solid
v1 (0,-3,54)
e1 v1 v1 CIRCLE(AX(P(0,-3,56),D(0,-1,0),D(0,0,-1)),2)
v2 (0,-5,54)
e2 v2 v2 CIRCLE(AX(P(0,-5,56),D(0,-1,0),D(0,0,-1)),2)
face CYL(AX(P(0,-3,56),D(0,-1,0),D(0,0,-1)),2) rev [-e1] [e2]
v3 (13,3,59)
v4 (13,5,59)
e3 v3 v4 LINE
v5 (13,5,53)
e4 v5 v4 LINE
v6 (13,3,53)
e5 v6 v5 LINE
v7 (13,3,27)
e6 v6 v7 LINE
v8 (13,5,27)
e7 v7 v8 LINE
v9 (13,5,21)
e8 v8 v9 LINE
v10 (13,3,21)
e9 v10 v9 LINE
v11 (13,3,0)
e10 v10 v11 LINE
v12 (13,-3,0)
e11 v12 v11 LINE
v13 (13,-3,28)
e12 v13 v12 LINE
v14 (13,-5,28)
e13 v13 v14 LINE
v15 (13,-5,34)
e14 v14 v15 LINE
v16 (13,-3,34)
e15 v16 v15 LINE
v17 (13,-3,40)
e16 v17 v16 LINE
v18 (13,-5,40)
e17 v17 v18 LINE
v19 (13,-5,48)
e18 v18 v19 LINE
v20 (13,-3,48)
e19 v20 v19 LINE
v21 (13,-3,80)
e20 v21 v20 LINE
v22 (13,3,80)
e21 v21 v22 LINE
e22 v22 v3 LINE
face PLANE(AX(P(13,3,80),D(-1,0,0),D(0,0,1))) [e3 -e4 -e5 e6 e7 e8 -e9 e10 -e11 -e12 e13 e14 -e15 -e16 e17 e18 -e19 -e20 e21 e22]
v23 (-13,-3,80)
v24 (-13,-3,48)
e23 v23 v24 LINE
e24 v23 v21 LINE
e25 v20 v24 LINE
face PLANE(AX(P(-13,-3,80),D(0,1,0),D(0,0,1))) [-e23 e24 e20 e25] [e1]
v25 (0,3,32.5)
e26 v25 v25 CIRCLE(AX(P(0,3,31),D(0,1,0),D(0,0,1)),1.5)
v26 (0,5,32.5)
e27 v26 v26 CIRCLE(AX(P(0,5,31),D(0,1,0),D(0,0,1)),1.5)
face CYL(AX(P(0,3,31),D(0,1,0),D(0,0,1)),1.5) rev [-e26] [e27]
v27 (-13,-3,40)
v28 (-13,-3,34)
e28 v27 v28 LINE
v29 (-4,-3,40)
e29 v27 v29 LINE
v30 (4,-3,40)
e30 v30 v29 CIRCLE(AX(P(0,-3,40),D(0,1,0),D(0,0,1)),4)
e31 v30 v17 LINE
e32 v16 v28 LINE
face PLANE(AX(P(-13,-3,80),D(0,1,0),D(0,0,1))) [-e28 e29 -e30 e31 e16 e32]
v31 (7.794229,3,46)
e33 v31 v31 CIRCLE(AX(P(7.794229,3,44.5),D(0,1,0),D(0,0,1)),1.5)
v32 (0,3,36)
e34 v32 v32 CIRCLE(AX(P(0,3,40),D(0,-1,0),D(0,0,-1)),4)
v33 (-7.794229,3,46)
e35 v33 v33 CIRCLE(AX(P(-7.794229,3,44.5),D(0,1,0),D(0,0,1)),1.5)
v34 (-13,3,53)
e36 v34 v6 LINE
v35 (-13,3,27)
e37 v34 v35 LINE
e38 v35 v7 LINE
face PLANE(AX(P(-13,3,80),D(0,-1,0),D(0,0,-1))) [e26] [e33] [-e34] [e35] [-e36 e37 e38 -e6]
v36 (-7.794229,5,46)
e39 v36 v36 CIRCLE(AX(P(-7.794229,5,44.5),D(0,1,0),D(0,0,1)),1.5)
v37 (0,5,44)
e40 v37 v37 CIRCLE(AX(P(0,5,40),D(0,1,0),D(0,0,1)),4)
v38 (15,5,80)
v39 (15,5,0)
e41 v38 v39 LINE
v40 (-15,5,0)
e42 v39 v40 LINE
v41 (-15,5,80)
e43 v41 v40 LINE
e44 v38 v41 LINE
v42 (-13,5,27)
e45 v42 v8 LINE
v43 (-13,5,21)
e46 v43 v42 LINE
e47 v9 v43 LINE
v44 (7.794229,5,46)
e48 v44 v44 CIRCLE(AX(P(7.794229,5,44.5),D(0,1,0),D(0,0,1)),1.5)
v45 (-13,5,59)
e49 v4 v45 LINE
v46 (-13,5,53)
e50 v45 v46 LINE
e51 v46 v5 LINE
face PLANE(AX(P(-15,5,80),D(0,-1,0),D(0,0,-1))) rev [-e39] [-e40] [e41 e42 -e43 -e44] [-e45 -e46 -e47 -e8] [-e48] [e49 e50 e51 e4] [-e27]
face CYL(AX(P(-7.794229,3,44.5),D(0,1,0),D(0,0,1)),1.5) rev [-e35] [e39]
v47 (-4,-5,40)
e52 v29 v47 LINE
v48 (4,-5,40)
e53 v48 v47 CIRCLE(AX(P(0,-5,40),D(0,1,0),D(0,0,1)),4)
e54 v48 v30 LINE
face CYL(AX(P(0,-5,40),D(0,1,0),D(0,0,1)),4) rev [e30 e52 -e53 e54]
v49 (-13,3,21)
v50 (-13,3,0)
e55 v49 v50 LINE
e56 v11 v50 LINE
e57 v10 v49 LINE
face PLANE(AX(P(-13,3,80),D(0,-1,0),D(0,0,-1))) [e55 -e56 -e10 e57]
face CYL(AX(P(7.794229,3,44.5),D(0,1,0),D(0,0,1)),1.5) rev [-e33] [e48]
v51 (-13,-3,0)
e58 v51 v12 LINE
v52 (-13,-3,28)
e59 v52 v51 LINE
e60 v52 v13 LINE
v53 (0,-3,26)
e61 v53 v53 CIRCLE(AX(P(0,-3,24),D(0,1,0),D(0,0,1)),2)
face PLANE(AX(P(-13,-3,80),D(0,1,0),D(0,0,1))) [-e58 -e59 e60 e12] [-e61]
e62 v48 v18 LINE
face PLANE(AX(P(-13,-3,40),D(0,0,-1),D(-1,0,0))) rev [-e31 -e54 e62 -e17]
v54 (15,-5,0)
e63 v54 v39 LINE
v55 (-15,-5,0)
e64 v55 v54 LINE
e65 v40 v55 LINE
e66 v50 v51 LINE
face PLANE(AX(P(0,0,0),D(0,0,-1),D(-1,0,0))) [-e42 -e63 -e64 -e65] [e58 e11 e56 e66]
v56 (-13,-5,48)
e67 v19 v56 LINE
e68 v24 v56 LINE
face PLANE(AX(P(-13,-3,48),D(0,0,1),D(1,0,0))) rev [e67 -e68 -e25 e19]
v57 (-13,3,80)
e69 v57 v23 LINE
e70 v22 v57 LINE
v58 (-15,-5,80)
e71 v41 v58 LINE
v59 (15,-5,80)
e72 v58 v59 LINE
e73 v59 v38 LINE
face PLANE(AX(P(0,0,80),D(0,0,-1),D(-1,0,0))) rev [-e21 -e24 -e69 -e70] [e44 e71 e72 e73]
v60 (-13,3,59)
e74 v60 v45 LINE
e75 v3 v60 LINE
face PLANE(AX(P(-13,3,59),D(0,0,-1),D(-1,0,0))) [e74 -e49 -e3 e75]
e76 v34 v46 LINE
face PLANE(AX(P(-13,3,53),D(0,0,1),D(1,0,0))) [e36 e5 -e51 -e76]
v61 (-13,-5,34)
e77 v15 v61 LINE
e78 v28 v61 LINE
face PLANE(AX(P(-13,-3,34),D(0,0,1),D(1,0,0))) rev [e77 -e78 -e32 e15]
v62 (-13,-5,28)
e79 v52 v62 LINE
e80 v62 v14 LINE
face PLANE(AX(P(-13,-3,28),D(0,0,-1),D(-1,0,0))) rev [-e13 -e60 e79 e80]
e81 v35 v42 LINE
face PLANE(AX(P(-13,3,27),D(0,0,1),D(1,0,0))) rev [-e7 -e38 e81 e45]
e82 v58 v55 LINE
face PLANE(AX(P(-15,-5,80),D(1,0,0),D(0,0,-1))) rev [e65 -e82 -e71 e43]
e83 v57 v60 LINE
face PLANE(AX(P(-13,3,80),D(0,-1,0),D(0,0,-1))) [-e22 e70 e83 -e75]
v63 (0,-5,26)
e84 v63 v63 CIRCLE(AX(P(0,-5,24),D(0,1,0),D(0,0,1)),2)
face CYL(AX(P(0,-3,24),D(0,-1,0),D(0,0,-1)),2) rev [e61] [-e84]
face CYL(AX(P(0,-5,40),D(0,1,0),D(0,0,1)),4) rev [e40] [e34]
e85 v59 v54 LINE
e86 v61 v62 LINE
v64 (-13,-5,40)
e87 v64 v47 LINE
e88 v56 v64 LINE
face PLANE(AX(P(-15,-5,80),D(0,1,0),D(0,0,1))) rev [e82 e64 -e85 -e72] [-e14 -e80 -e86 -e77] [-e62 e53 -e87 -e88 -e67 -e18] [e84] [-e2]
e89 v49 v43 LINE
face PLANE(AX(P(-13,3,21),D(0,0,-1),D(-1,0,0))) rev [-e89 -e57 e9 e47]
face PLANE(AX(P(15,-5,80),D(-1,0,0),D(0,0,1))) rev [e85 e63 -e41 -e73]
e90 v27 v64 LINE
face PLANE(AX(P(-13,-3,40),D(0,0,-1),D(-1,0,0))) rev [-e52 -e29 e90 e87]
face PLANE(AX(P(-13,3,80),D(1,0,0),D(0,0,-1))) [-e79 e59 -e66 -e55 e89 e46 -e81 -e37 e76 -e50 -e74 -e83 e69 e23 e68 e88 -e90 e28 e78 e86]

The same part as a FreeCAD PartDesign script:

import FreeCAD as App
import Part
import Sketcher
Q = App.Units.Quantity


def add_polygon(sketch, points):
    """Adds a closed chain of lines whose ends are joined by coincident constraints."""
    first, n = sketch.GeometryCount, len(points)
    for a, b in zip(points, points[1:] + points[:1]):
        sketch.addGeometry(Part.LineSegment(App.Vector(*a, 0), App.Vector(*b, 0)), False)
    for i in range(n):
        sketch.addConstraint(Sketcher.Constraint("Coincident", first + i, 2, first + (i + 1) % n, 1))

doc = App.newDocument("Part")
body = doc.addObject("PartDesign::Body", "Body")

sketch1 = body.newObject("Sketcher::SketchObject", "Sketch")
sketch1.AttachmentSupport = (doc.getObject("XY_Plane"), [""])
sketch1.MapMode = "FlatFace"
add_polygon(sketch1, [(-15, 5), (-15, -5), (15, -5), (15, 5)])
add_polygon(sketch1, [(13, -3), (-13, -3), (-13, 3), (13, 3)])
sketch1.addConstraint(Sketcher.Constraint("Vertical", 0))
sketch1.addConstraint(Sketcher.Constraint("Horizontal", 1))
sketch1.addConstraint(Sketcher.Constraint("Vertical", 2))
sketch1.addConstraint(Sketcher.Constraint("Horizontal", 3))
sketch1.addConstraint(Sketcher.Constraint("Horizontal", 4))
sketch1.addConstraint(Sketcher.Constraint("Vertical", 5))
sketch1.addConstraint(Sketcher.Constraint("Horizontal", 6))
sketch1.addConstraint(Sketcher.Constraint("Vertical", 7))
sketch1.addConstraint(Sketcher.Constraint("Symmetric", 0, 2, 2, 2, -1, 1))
sketch1.addConstraint(Sketcher.Constraint("Symmetric", 4, 2, 6, 2, -1, 1))
sketch1.addConstraint(Sketcher.Constraint("DistanceX", 1, 1, 1, 2, Q("30 mm")))
sketch1.addConstraint(Sketcher.Constraint("DistanceX", 4, 2, 4, 1, Q("26 mm")))
sketch1.addConstraint(Sketcher.Constraint("DistanceY", 0, 2, 0, 1, Q("10 mm")))
sketch1.addConstraint(Sketcher.Constraint("DistanceY", 5, 1, 5, 2, Q("6 mm")))
pad1 = body.newObject("PartDesign::Pad", "Pad")
pad1.Profile = sketch1
pad1.Length = 80

sketch2 = body.newObject("Sketcher::SketchObject", "Sketch001")
sketch2.AttachmentSupport = (doc.getObject("XZ_Plane"), [""])
sketch2.MapMode = "FlatFace"
sketch2.AttachmentOffset = App.Placement(App.Vector(0, 0, -5), App.Rotation())
sketch2.addGeometry(Part.Circle(App.Vector(0, 40, 0), App.Vector(0, 0, 1), 4), False)
sketch2.addConstraint(Sketcher.Constraint("PointOnObject", 0, 3, -2))
sketch2.addConstraint(Sketcher.Constraint("Diameter", 0, Q("8 mm")))
sketch2.addConstraint(Sketcher.Constraint("DistanceY", -1, 1, 0, 3, Q("40 mm")))
pocket1 = body.newObject("PartDesign::Pocket", "Pocket")
pocket1.Profile = sketch2
pocket1.Length = 10
pocket1.Reversed = True

sketch3 = body.newObject("Sketcher::SketchObject", "Sketch002")
sketch3.AttachmentSupport = (doc.getObject("XZ_Plane"), [""])
sketch3.MapMode = "FlatFace"
sketch3.AttachmentOffset = App.Placement(App.Vector(0, 0, -5), App.Rotation())
sketch3.addGeometry(Part.Circle(App.Vector(0, 31, 0), App.Vector(0, 0, 1), 1.5), False)
sketch3.addGeometry(Part.Circle(App.Vector(7.8, 44.5, 0), App.Vector(0, 0, 1), 1.5), False)
sketch3.addGeometry(Part.Circle(App.Vector(-7.8, 44.5, 0), App.Vector(0, 0, 1), 1.5), False)
sketch3.addConstraint(Sketcher.Constraint("Equal", 0, 1))
sketch3.addConstraint(Sketcher.Constraint("Equal", 1, 2))
sketch3.addConstraint(Sketcher.Constraint("Symmetric", 1, 3, 2, 3, -2))
sketch3.addConstraint(Sketcher.Constraint("PointOnObject", 0, 3, -2))
sketch3.addConstraint(Sketcher.Constraint("Diameter", 0, Q("3 mm")))
sketch3.addConstraint(Sketcher.Constraint("DistanceY", -1, 1, 0, 3, Q("31 mm")))
sketch3.addConstraint(Sketcher.Constraint("DistanceY", -1, 1, 1, 3, Q("44.5 mm")))
sketch3.addConstraint(Sketcher.Constraint("DistanceX", -1, 1, 1, 3, Q("7.794229 mm")))
pocket2 = body.newObject("PartDesign::Pocket", "Pocket001")
pocket2.Profile = sketch3
pocket2.Length = 2
pocket2.Reversed = True

sketch4 = body.newObject("Sketcher::SketchObject", "Sketch003")
sketch4.AttachmentSupport = (doc.getObject("XZ_Plane"), [""])
sketch4.MapMode = "FlatFace"
sketch4.AttachmentOffset = App.Placement(App.Vector(0, 0, 5), App.Rotation())
sketch4.addGeometry(Part.Circle(App.Vector(0, 56, 0), App.Vector(0, 0, 1), 2), False)
sketch4.addConstraint(Sketcher.Constraint("PointOnObject", 0, 3, -2))
sketch4.addConstraint(Sketcher.Constraint("Diameter", 0, Q("4 mm")))
sketch4.addConstraint(Sketcher.Constraint("DistanceY", -1, 1, 0, 3, Q("56 mm")))
pocket3 = body.newObject("PartDesign::Pocket", "Pocket002")
pocket3.Profile = sketch4
pocket3.Length = 2
doc.recompute()

datumplane = body.newObject("PartDesign::Plane", "DatumPlane")
datumplane.AttachmentSupport = (doc.getObject("XY_Plane"), [""])
datumplane.MapMode = "FlatFace"
datumplane.AttachmentOffset = App.Placement(App.Vector(0, 0, 40), App.Rotation())
mirrored = body.newObject("PartDesign::Mirrored", "Mirrored")
mirrored.Originals = [pocket3]
mirrored.MirrorPlane = (datumplane, [""])
body.Tip = mirrored

sketch5 = body.newObject("Sketcher::SketchObject", "Sketch004")
sketch5.AttachmentSupport = (doc.getObject("XZ_Plane"), [""])
sketch5.MapMode = "FlatFace"
sketch5.AttachmentOffset = App.Placement(App.Vector(0, 0, -5), App.Rotation())
add_polygon(sketch5, [(-13, 21), (-13, 27), (13, 27), (13, 21)])
sketch5.addConstraint(Sketcher.Constraint("Vertical", 0))
sketch5.addConstraint(Sketcher.Constraint("Horizontal", 1))
sketch5.addConstraint(Sketcher.Constraint("Vertical", 2))
sketch5.addConstraint(Sketcher.Constraint("Horizontal", 3))
sketch5.addConstraint(Sketcher.Constraint("DistanceX", 1, 1, 1, 2, Q("26 mm")))
sketch5.addConstraint(Sketcher.Constraint("DistanceY", 0, 1, 0, 2, Q("6 mm")))
sketch5.addConstraint(Sketcher.Constraint("DistanceX", 0, 2, -1, 1, Q("13 mm")))
sketch5.addConstraint(Sketcher.Constraint("DistanceY", -1, 1, 0, 2, Q("27 mm")))
pocket4 = body.newObject("PartDesign::Pocket", "Pocket003")
pocket4.Profile = sketch5
pocket4.Length = 2
pocket4.Reversed = True
doc.recompute()

datumplane2 = body.newObject("PartDesign::Plane", "DatumPlane001")
datumplane2.AttachmentSupport = (doc.getObject("XY_Plane"), [""])
datumplane2.MapMode = "FlatFace"
datumplane2.AttachmentOffset = App.Placement(App.Vector(0, 0, 40), App.Rotation())
mirrored2 = body.newObject("PartDesign::Mirrored", "Mirrored001")
mirrored2.Originals = [pocket4]
mirrored2.MirrorPlane = (datumplane2, [""])
body.Tip = mirrored2

sketch6 = body.newObject("Sketcher::SketchObject", "Sketch005")
sketch6.AttachmentSupport = (doc.getObject("XZ_Plane"), [""])
sketch6.MapMode = "FlatFace"
sketch6.AttachmentOffset = App.Placement(App.Vector(0, 0, 5), App.Rotation())
add_polygon(sketch6, [(13, 28), (13, 34), (-13, 34), (-13, 28)])
sketch6.addConstraint(Sketcher.Constraint("Vertical", 0))
sketch6.addConstraint(Sketcher.Constraint("Horizontal", 1))
sketch6.addConstraint(Sketcher.Constraint("Vertical", 2))
sketch6.addConstraint(Sketcher.Constraint("Horizontal", 3))
sketch6.addConstraint(Sketcher.Constraint("DistanceX", 1, 2, 1, 1, Q("26 mm")))
sketch6.addConstraint(Sketcher.Constraint("DistanceY", 0, 1, 0, 2, Q("6 mm")))
sketch6.addConstraint(Sketcher.Constraint("DistanceX", -1, 1, 0, 2, Q("13 mm")))
sketch6.addConstraint(Sketcher.Constraint("DistanceY", -1, 1, 0, 2, Q("34 mm")))
pocket5 = body.newObject("PartDesign::Pocket", "Pocket004")
pocket5.Profile = sketch6
pocket5.Length = 2

sketch7 = body.newObject("Sketcher::SketchObject", "Sketch006")
sketch7.AttachmentSupport = (doc.getObject("XZ_Plane"), [""])
sketch7.MapMode = "FlatFace"
sketch7.AttachmentOffset = App.Placement(App.Vector(0, 0, 5), App.Rotation())
add_polygon(sketch7, [(13, 40), (13, 48), (-13, 48), (-13, 40)])
sketch7.addConstraint(Sketcher.Constraint("Vertical", 0))
sketch7.addConstraint(Sketcher.Constraint("Horizontal", 1))
sketch7.addConstraint(Sketcher.Constraint("Vertical", 2))
sketch7.addConstraint(Sketcher.Constraint("Horizontal", 3))
sketch7.addConstraint(Sketcher.Constraint("DistanceX", 1, 2, 1, 1, Q("26 mm")))
sketch7.addConstraint(Sketcher.Constraint("DistanceY", 0, 1, 0, 2, Q("8 mm")))
sketch7.addConstraint(Sketcher.Constraint("DistanceX", -1, 1, 0, 2, Q("13 mm")))
sketch7.addConstraint(Sketcher.Constraint("DistanceY", -1, 1, 0, 2, Q("48 mm")))
pocket6 = body.newObject("PartDesign::Pocket", "Pocket005")
pocket6.Profile = sketch7
pocket6.Length = 2

doc.recompute()
